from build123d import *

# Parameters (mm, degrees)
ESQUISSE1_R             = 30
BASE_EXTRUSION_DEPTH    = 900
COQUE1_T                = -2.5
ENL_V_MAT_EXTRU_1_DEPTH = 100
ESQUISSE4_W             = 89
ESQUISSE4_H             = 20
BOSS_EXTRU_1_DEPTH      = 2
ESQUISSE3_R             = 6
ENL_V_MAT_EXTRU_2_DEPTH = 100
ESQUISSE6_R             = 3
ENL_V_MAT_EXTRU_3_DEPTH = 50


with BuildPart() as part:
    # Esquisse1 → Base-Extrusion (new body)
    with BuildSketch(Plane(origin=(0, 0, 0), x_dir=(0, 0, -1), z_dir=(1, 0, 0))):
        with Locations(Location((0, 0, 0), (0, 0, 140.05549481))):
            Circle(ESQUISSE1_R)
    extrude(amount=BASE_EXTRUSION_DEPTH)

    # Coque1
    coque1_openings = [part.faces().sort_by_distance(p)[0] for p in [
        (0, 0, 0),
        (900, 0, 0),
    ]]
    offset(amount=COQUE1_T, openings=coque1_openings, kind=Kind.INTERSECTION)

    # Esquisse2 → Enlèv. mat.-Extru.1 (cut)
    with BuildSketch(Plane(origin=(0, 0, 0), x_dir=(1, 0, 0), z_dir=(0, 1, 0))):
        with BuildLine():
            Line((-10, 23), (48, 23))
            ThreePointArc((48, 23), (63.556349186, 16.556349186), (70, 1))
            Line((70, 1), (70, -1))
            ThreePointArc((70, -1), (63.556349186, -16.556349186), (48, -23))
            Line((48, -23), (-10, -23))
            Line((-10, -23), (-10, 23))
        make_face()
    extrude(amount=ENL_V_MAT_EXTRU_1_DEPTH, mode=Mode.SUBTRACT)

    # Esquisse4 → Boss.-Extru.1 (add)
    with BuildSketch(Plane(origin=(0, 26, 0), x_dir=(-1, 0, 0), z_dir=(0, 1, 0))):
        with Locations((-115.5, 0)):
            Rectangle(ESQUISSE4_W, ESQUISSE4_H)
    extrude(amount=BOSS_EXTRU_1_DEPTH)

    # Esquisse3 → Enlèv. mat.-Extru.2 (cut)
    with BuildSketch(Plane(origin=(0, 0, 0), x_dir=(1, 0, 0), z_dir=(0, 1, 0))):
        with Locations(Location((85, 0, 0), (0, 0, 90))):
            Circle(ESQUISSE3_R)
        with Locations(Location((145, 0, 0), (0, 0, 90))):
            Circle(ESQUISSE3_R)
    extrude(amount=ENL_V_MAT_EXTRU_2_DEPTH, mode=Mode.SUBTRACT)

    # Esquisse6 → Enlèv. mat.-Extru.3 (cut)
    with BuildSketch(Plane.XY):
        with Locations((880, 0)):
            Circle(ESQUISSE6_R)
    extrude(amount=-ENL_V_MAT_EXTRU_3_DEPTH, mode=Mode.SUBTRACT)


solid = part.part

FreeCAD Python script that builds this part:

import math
import FreeCAD as App
import Part
import Sketcher


def faces_at(feature, points):
    """Names of the faces that lie closest to the given points."""
    faces = feature.Shape.Faces
    near = lambda p: min(range(len(faces)), key=lambda i: faces[i].distToShape(Part.Vertex(*p))[0])
    return sorted({f"Face{near(p) + 1}" for p in points})


def add_polygon(sketch, points):
    """Adds a closed chain of lines whose ends are joined by coincident constraints."""
    first, n = sketch.GeometryCount, len(points)
    for a, b in zip(points, points[1:] + points[:1]):
        sketch.addGeometry(Part.LineSegment(App.Vector(*a, 0), App.Vector(*b, 0)), False)
    for i in range(n):
        sketch.addConstraint(Sketcher.Constraint("Coincident", first + i, 2, first + (i + 1) % n, 1))

doc = App.newDocument("Part")
params = doc.addObject("Spreadsheet::Sheet", "Params")
for row, (alias, value) in enumerate([
    ("sketch1_diameter", "60 mm"),
    ("pad1_length", "900 mm"),
    ("thickness_wall", "2.5 mm"),
    ("sketch2_radius", "22 mm"),
    ("sketch2_width", "58 mm"),
    ("sketch2_height", "46 mm"),
    ("pocket1_length", "100 mm"),
    ("sketch3_width", "89 mm"),
    ("sketch3_height", "20 mm"),
    ("pad2_length", "2 mm"),
    ("sketch4_diameter", "12 mm"),
    ("pocket2_length", "100 mm"),
    ("sketch5_diameter", "6 mm"),
    ("pocket3_length", "50 mm"),
], start=1):
    params.set(f"A{row}", alias)
    params.set(f"B{row}", "=" + value)
    params.setAlias(f"B{row}", alias)

body = doc.addObject("PartDesign::Body", "Body")

sketch1 = doc.addObject("Sketcher::SketchObject", "Sketch")
body.addObject(sketch1)
sketch1.AttachmentSupport = (doc.YZ_Plane, [""])
sketch1.MapMode = "FlatFace"
sketch1.addGeometry(Part.Circle(App.Vector(0, 0, 0), App.Vector(0, 0, 1), 30), False)
sketch1.addConstraint([
    Sketcher.Constraint("Coincident", 0, 3, -1, 1),
    Sketcher.Constraint("Diameter", 0, 60.0),
])
sketch1.setExpression("Constraints[1]", "Params.sketch1_diameter")
pad1 = doc.addObject("PartDesign::Pad", "Pad")
body.addObject(pad1)
pad1.Profile = sketch1
pad1.setExpression("Length", "Params.pad1_length")
doc.recompute()

thickness = doc.addObject("PartDesign::Thickness", "Thickness")
body.addObject(thickness)
thickness.Base = (pad1, faces_at(pad1, [(0, 0, 0), (900, 0, 0)]))
thickness.setExpression("Value", "Params.thickness_wall")
thickness.Reversed = True
thickness.Join = "Intersection"

sketch2 = doc.addObject("Sketcher::SketchObject", "Sketch001")
body.addObject(sketch2)
sketch2.AttachmentSupport = (doc.XZ_Plane, [""])
sketch2.MapMode = "FlatFace"
sketch2.addGeometry([
    Part.LineSegment(App.Vector(48, -23, 0), App.Vector(-10, -23, 0)),
    Part.LineSegment(App.Vector(-10, -23, 0), App.Vector(-10, 23, 0)),
    Part.LineSegment(App.Vector(-10, 23, 0), App.Vector(48, 23, 0)),
    Part.ArcOfCircle(Part.Circle(App.Vector(48, 1, 0), App.Vector(0, 0, 1), 22), math.radians(0), math.radians(90)),
    Part.LineSegment(App.Vector(70, 1, 0), App.Vector(70, -1, 0)),
    Part.ArcOfCircle(Part.Circle(App.Vector(48, -1, 0), App.Vector(0, 0, 1), 22), math.radians(-90), math.radians(0)),
], False)
sketch2.addConstraint([
    Sketcher.Constraint("Coincident", 0, 2, 1, 1),
    Sketcher.Constraint("Coincident", 1, 2, 2, 1),
    Sketcher.Constraint("Tangent", 2, 2, 3, 2),
    Sketcher.Constraint("Tangent", 3, 1, 4, 1),
    Sketcher.Constraint("Tangent", 4, 2, 5, 2),
    Sketcher.Constraint("Tangent", 5, 1, 0, 1),
    Sketcher.Constraint("Horizontal", 0),
    Sketcher.Constraint("Vertical", 1),
    Sketcher.Constraint("Horizontal", 2),
    Sketcher.Constraint("Vertical", 4),
    Sketcher.Constraint("Equal", 3, 5),
    Sketcher.Constraint("Radius", 3, 22.0),
    Sketcher.Constraint("DistanceX", 0, 2, 0, 1, 58.0),
    Sketcher.Constraint("DistanceY", 1, 1, 1, 2, 46.0),
    Sketcher.Constraint("DistanceX", -1, 1, 3, 3, 48.0),
    Sketcher.Constraint("DistanceY", -1, 1, 3, 3, 1.0),
])
sketch2.setExpression("Constraints[11]", "Params.sketch2_radius")
sketch2.setExpression("Constraints[12]", "Params.sketch2_width")
sketch2.setExpression("Constraints[13]", "Params.sketch2_height")
pocket1 = doc.addObject("PartDesign::Pocket", "Pocket")
body.addObject(pocket1)
pocket1.Profile = sketch2
pocket1.setExpression("Length", "Params.pocket1_length")

sketch3 = doc.addObject("Sketcher::SketchObject", "Sketch002")
body.addObject(sketch3)
sketch3.AttachmentSupport = (doc.XZ_Plane, [""])
sketch3.MapMode = "FlatFace"
sketch3.AttachmentOffset = App.Placement(App.Vector(0, 0, -26), App.Rotation())
add_polygon(sketch3, [(160, 10), (160, -10), (71, -10), (71, 10)])
sketch3.addConstraint([
    Sketcher.Constraint("Vertical", 0),
    Sketcher.Constraint("Horizontal", 1),
    Sketcher.Constraint("Vertical", 2),
    Sketcher.Constraint("Horizontal", 3),
    Sketcher.Constraint("DistanceX", 1, 2, 1, 1, 89.0),
    Sketcher.Constraint("DistanceY", 0, 2, 0, 1, 20.0),
    Sketcher.Constraint("DistanceX", -1, 1, 0, 2, 160.0),
    Sketcher.Constraint("DistanceY", 0, 2, -1, 1, 10.0),
])
sketch3.setExpression("Constraints[8]", "Params.sketch3_width")
sketch3.setExpression("Constraints[9]", "Params.sketch3_height")
pad2 = doc.addObject("PartDesign::Pad", "Pad001")
body.addObject(pad2)
pad2.Profile = sketch3
pad2.setExpression("Length", "Params.pad2_length")
pad2.Reversed = True

sketch4 = doc.addObject("Sketcher::SketchObject", "Sketch003")
body.addObject(sketch4)
sketch4.AttachmentSupport = (doc.XZ_Plane, [""])
sketch4.MapMode = "FlatFace"
sketch4.addGeometry([
    Part.Circle(App.Vector(85, 0, 0), App.Vector(0, 0, 1), 6),
    Part.Circle(App.Vector(145, 0, 0), App.Vector(0, 0, 1), 6),
], False)
sketch4.addConstraint([
    Sketcher.Constraint("Equal", 0, 1),
    Sketcher.Constraint("PointOnObject", 0, 3, -1),
    Sketcher.Constraint("PointOnObject", 1, 3, -1),
    Sketcher.Constraint("Diameter", 0, 12.0),
    Sketcher.Constraint("DistanceX", -1, 1, 0, 3, 85.0),
    Sketcher.Constraint("DistanceX", -1, 1, 1, 3, 145.0),
])
sketch4.setExpression("Constraints[3]", "Params.sketch4_diameter")
pocket2 = doc.addObject("PartDesign::Pocket", "Pocket001")
body.addObject(pocket2)
pocket2.Profile = sketch4
pocket2.setExpression("Length", "Params.pocket2_length")

sketch5 = doc.addObject("Sketcher::SketchObject", "Sketch004")
body.addObject(sketch5)
sketch5.AttachmentSupport = (doc.XY_Plane, [""])
sketch5.MapMode = "FlatFace"
sketch5.addGeometry(Part.Circle(App.Vector(880, 0, 0), App.Vector(0, 0, 1), 3), False)
sketch5.addConstraint([
    Sketcher.Constraint("PointOnObject", 0, 3, -1),
    Sketcher.Constraint("Diameter", 0, 6.0),
    Sketcher.Constraint("DistanceX", -1, 1, 0, 3, 880.0),
])
sketch5.setExpression("Constraints[1]", "Params.sketch5_diameter")
pocket3 = doc.addObject("PartDesign::Pocket", "Pocket002")
body.addObject(pocket3)
pocket3.Profile = sketch5
pocket3.setExpression("Length", "Params.pocket3_length")

doc.recompute()
